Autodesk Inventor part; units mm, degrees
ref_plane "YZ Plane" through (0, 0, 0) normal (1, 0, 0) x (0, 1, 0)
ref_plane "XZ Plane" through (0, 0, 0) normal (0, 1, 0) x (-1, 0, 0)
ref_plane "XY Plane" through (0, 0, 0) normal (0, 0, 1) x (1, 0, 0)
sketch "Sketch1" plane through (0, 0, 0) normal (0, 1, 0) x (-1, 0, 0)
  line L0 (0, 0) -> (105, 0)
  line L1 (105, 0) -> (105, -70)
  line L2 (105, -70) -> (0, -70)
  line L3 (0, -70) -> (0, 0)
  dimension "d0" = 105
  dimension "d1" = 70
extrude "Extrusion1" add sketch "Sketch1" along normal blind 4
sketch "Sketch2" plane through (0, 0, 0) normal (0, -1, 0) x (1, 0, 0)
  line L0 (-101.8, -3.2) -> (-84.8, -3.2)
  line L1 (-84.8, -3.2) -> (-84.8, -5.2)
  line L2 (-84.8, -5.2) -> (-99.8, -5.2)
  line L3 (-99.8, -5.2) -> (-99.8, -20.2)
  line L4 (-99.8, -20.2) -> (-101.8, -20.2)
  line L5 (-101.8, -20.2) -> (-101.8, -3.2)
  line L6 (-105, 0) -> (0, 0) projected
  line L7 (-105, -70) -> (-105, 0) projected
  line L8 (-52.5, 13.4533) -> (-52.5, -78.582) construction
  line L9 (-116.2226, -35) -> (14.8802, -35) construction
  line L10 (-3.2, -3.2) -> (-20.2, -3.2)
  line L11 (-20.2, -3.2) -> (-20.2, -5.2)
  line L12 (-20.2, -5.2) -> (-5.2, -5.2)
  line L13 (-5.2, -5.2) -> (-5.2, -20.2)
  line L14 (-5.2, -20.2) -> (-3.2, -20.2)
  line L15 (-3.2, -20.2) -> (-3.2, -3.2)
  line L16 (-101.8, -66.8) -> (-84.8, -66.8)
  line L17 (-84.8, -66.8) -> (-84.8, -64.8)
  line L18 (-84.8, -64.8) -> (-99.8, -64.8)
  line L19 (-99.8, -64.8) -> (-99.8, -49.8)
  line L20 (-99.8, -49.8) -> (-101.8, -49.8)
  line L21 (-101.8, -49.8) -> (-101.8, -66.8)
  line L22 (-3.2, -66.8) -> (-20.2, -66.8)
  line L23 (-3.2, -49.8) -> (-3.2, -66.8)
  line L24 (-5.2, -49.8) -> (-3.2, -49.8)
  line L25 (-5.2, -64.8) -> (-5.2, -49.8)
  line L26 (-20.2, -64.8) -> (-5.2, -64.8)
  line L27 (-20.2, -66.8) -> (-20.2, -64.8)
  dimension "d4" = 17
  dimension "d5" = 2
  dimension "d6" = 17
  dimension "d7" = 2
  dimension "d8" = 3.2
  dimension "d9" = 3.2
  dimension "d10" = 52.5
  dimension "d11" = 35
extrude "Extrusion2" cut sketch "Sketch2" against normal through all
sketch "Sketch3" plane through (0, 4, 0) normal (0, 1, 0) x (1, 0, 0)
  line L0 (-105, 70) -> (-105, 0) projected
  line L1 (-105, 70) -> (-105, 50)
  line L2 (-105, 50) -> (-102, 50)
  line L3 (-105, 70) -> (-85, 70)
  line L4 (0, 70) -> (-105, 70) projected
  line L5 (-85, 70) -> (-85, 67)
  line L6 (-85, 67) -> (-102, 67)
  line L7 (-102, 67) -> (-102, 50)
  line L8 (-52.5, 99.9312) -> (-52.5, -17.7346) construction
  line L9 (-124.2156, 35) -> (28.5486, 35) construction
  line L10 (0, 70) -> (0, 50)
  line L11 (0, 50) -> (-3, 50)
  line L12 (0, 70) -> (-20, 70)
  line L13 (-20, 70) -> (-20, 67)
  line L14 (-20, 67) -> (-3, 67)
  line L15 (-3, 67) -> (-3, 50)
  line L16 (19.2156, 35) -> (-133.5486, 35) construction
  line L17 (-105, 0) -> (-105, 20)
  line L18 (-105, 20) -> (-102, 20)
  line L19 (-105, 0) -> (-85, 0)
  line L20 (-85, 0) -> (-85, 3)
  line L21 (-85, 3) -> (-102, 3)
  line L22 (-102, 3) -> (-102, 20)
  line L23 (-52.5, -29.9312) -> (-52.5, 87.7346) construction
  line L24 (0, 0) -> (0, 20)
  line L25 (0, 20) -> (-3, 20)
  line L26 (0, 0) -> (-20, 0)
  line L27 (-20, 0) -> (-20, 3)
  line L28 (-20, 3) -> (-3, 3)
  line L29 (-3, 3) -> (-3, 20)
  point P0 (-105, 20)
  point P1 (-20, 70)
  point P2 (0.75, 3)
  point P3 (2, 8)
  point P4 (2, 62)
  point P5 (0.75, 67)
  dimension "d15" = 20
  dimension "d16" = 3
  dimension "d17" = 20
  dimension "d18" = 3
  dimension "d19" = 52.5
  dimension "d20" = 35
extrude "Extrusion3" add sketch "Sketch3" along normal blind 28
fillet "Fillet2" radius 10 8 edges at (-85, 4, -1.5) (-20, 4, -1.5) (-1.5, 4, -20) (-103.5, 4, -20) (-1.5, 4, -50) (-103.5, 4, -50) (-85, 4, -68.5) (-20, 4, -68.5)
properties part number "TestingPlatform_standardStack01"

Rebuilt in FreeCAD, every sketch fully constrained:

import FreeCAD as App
import Part
import Sketcher

V = App.Vector
Q = App.Units.Quantity


def edges_at(feature, points):
    """Names of the edges that pass closest to the given points."""
    edges = feature.Shape.Edges
    near = lambda p: min(range(len(edges)), key=lambda i: edges[i].distToShape(Part.Vertex(*p))[0])
    return sorted({f"Edge{near(p) + 1}" for p in points})

doc = App.newDocument("Part")
body = doc.addObject("PartDesign::Body", "Body")

# Sketch on XZ plane
sketch1 = body.newObject("Sketcher::SketchObject", "Sketch")
sketch1.AttachmentSupport = (doc.getObject("XZ_Plane"), [""])
sketch1.MapMode = "FlatFace"
sketch1.addGeometry([
    Part.LineSegment(V(-105, 0, 0), V(0, 0, 0)),
    Part.LineSegment(V(0, 0, 0), V(0, -70, 0)),
    Part.LineSegment(V(0, -70, 0), V(-105, -70, 0)),
    Part.LineSegment(V(-105, -70, 0), V(-105, 0, 0)),
], False)
sketch1.addConstraint([
    Sketcher.Constraint("Coincident", 0, 2, 1, 1),
    Sketcher.Constraint("Coincident", 1, 2, 2, 1),
    Sketcher.Constraint("Coincident", 2, 2, 3, 1),
    Sketcher.Constraint("Coincident", 3, 2, 0, 1),
    Sketcher.Constraint("Horizontal", 0),
    Sketcher.Constraint("Vertical", 1),
    Sketcher.Constraint("Horizontal", 2),
    Sketcher.Constraint("Vertical", 3),
    Sketcher.Constraint("Coincident", 0, 2, -1, 1),
    Sketcher.Constraint("DistanceX", 0, 1, 0, 2, Q("105 mm")),
    Sketcher.Constraint("DistanceY", 1, 2, 1, 1, Q("70 mm")),
])
pad1 = body.newObject("PartDesign::Pad", "Pad")
pad1.Profile = sketch1
pad1.Length = 4
pad1.Reversed = True

# Sketch on XZ plane
sketch2 = body.newObject("Sketcher::SketchObject", "Sketch001")
sketch2.AttachmentSupport = (doc.getObject("XZ_Plane"), [""])
sketch2.MapMode = "FlatFace"
sketch2.addGeometry([
    Part.LineSegment(V(-84.8, -3.2, 0), V(-101.8, -3.2, 0)),  # 0
    Part.LineSegment(V(-101.8, -3.2, 0), V(-101.8, -20.2, 0)),  # 1
    Part.LineSegment(V(-101.8, -20.2, 0), V(-99.8, -20.2, 0)),  # 2
    Part.LineSegment(V(-99.8, -20.2, 0), V(-99.8, -5.2, 0)),  # 3
    Part.LineSegment(V(-99.8, -5.2, 0), V(-84.8, -5.2, 0)),  # 4
    Part.LineSegment(V(-84.8, -5.2, 0), V(-84.8, -3.2, 0)),  # 5
    Part.LineSegment(V(-3.2, -20.2, 0), V(-3.2, -3.2, 0)),  # 6
    Part.LineSegment(V(-3.2, -3.2, 0), V(-20.2, -3.2, 0)),  # 7
    Part.LineSegment(V(-20.2, -3.2, 0), V(-20.2, -5.2, 0)),  # 8
    Part.LineSegment(V(-20.2, -5.2, 0), V(-5.2, -5.2, 0)),  # 9
    Part.LineSegment(V(-5.2, -5.2, 0), V(-5.2, -20.2, 0)),  # 10
    Part.LineSegment(V(-5.2, -20.2, 0), V(-3.2, -20.2, 0)),  # 11
    Part.LineSegment(V(-101.8, -49.8, 0), V(-101.8, -66.8, 0)),  # 12
    Part.LineSegment(V(-101.8, -66.8, 0), V(-84.8, -66.8, 0)),  # 13
    Part.LineSegment(V(-84.8, -66.8, 0), V(-84.8, -64.8, 0)),  # 14
    Part.LineSegment(V(-84.8, -64.8, 0), V(-99.8, -64.8, 0)),  # 15
    Part.LineSegment(V(-99.8, -64.8, 0), V(-99.8, -49.8, 0)),  # 16
    Part.LineSegment(V(-99.8, -49.8, 0), V(-101.8, -49.8, 0)),  # 17
    Part.LineSegment(V(-20.2, -66.8, 0), V(-3.2, -66.8, 0)),  # 18
    Part.LineSegment(V(-3.2, -66.8, 0), V(-3.2, -49.8, 0)),  # 19
    Part.LineSegment(V(-3.2, -49.8, 0), V(-5.2, -49.8, 0)),  # 20
    Part.LineSegment(V(-5.2, -49.8, 0), V(-5.2, -64.8, 0)),  # 21
    Part.LineSegment(V(-5.2, -64.8, 0), V(-20.2, -64.8, 0)),  # 22
    Part.LineSegment(V(-20.2, -64.8, 0), V(-20.2, -66.8, 0)),  # 23
], False)
sketch2.addConstraint([
    Sketcher.Constraint("Coincident", 0, 2, 1, 1),
    Sketcher.Constraint("Coincident", 1, 2, 2, 1),
    Sketcher.Constraint("Coincident", 2, 2, 3, 1),
    Sketcher.Constraint("Coincident", 3, 2, 4, 1),
    Sketcher.Constraint("Coincident", 4, 2, 5, 1),
    Sketcher.Constraint("Coincident", 5, 2, 0, 1),
    Sketcher.Constraint("Coincident", 6, 2, 7, 1),
    Sketcher.Constraint("Coincident", 7, 2, 8, 1),
    Sketcher.Constraint("Coincident", 8, 2, 9, 1),
    Sketcher.Constraint("Coincident", 9, 2, 10, 1),
    Sketcher.Constraint("Coincident", 10, 2, 11, 1),
    Sketcher.Constraint("Coincident", 11, 2, 6, 1),
    Sketcher.Constraint("Coincident", 12, 2, 13, 1),
    Sketcher.Constraint("Coincident", 13, 2, 14, 1),
    Sketcher.Constraint("Coincident", 14, 2, 15, 1),
    Sketcher.Constraint("Coincident", 15, 2, 16, 1),
    Sketcher.Constraint("Coincident", 16, 2, 17, 1),
    Sketcher.Constraint("Coincident", 17, 2, 12, 1),
    Sketcher.Constraint("Coincident", 18, 2, 19, 1),
    Sketcher.Constraint("Coincident", 19, 2, 20, 1),
    Sketcher.Constraint("Coincident", 20, 2, 21, 1),
    Sketcher.Constraint("Coincident", 21, 2, 22, 1),
    Sketcher.Constraint("Coincident", 22, 2, 23, 1),
    Sketcher.Constraint("Coincident", 23, 2, 18, 1),
    Sketcher.Constraint("Horizontal", 0),
    Sketcher.Constraint("Vertical", 1),
    Sketcher.Constraint("Horizontal", 2),
    Sketcher.Constraint("Vertical", 3),
    Sketcher.Constraint("Horizontal", 4),
    Sketcher.Constraint("Vertical", 5),
    Sketcher.Constraint("Vertical", 6),
    Sketcher.Constraint("Horizontal", 7),
    Sketcher.Constraint("Vertical", 8),
    Sketcher.Constraint("Horizontal", 9),
    Sketcher.Constraint("Vertical", 10),
    Sketcher.Constraint("Horizontal", 11),
    Sketcher.Constraint("Vertical", 12),
    Sketcher.Constraint("Horizontal", 13),
    Sketcher.Constraint("Vertical", 14),
    Sketcher.Constraint("Horizontal", 15),
    Sketcher.Constraint("Vertical", 16),
    Sketcher.Constraint("Horizontal", 17),
    Sketcher.Constraint("Horizontal", 18),
    Sketcher.Constraint("Vertical", 19),
    Sketcher.Constraint("Horizontal", 20),
    Sketcher.Constraint("Vertical", 21),
    Sketcher.Constraint("Horizontal", 22),
    Sketcher.Constraint("Vertical", 23),
    Sketcher.Constraint("Horizontal", 5, 2, 6, 2),
    Sketcher.Constraint("Horizontal", 4, 2, 8, 2),
    Sketcher.Constraint("Horizontal", 2, 2, 10, 2),
    Sketcher.Constraint("Horizontal", 13, 2, 18, 2),
    Sketcher.Constraint("Horizontal", 17, 2, 19, 2),
    Sketcher.Constraint("Horizontal", 15, 2, 21, 2),
    Sketcher.Constraint("Vertical", 1, 2, 12, 2),
    Sketcher.Constraint("Vertical", 5, 2, 13, 2),
    Sketcher.Constraint("Vertical", 3, 2, 15, 2),
    Sketcher.Constraint("Vertical", 11, 2, 18, 2),
    Sketcher.Constraint("Vertical", 10, 2, 20, 2),
    Sketcher.Constraint("Vertical", 8, 2, 22, 2),
    Sketcher.Constraint("Equal", 0, 7),
    Sketcher.Constraint("Equal", 4, 9),
    Sketcher.Constraint("Equal", 18, 1),
    Sketcher.Constraint("Equal", 22, 3),
    Sketcher.Constraint("Equal", 6, 12),
    Sketcher.Constraint("Equal", 8, 14),
    Sketcher.Constraint("DistanceX", 0, 2, 0, 1, Q("17 mm")),
    Sketcher.Constraint("DistanceX", 2, 1, 2, 2, Q("2 mm")),
    Sketcher.Constraint("DistanceY", 0, 2, -1, 1, Q("3.2 mm")),
    Sketcher.Constraint("DistanceX", 6, 2, -1, 1, Q("3.2 mm")),
    Sketcher.Constraint("DistanceX", 0, 2, -1, 1, Q("101.8 mm")),
    Sketcher.Constraint("DistanceY", 12, 2, -1, 1, Q("66.8 mm")),
])
pocket1 = body.newObject("PartDesign::Pocket", "Pocket")
pocket1.Profile = sketch2
pocket1.Type = "ThroughAll"

# Sketch on XZ plane
sketch3 = body.newObject("Sketcher::SketchObject", "Sketch002")
sketch3.AttachmentSupport = (doc.getObject("XZ_Plane"), [""])
sketch3.MapMode = "FlatFace"
sketch3.AttachmentOffset = App.Placement(V(0, 0, -4), App.Rotation())
sketch3.addGeometry([
    Part.LineSegment(V(-85, -70, 0), V(-105, -70, 0)),  # 0
    Part.LineSegment(V(-105, -70, 0), V(-105, -50, 0)),  # 1
    Part.LineSegment(V(-105, -50, 0), V(-102, -50, 0)),  # 2
    Part.LineSegment(V(-102, -50, 0), V(-102, -67, 0)),  # 3
    Part.LineSegment(V(-102, -67, 0), V(-85, -67, 0)),  # 4
    Part.LineSegment(V(-85, -67, 0), V(-85, -70, 0)),  # 5
    Part.LineSegment(V(0, -70, 0), V(-20, -70, 0)),  # 6
    Part.LineSegment(V(-20, -70, 0), V(-20, -67, 0)),  # 7
    Part.LineSegment(V(-20, -67, 0), V(-3, -67, 0)),  # 8
    Part.LineSegment(V(-3, -67, 0), V(-3, -50, 0)),  # 9
    Part.LineSegment(V(-3, -50, 0), V(0, -50, 0)),  # 10
    Part.LineSegment(V(0, -50, 0), V(0, -70, 0)),  # 11
    Part.LineSegment(V(-102, -20, 0), V(-105, -20, 0)),  # 12
    Part.LineSegment(V(-105, -20, 0), V(-105, 0, 0)),  # 13
    Part.LineSegment(V(-105, 0, 0), V(-85, 0, 0)),  # 14
    Part.LineSegment(V(-85, 0, 0), V(-85, -3, 0)),  # 15
    Part.LineSegment(V(-85, -3, 0), V(-102, -3, 0)),  # 16
    Part.LineSegment(V(-102, -3, 0), V(-102, -20, 0)),  # 17
    Part.LineSegment(V(-20, 0, 0), V(0, 0, 0)),  # 18
    Part.LineSegment(V(0, 0, 0), V(0, -20, 0)),  # 19
    Part.LineSegment(V(0, -20, 0), V(-3, -20, 0)),  # 20
    Part.LineSegment(V(-3, -20, 0), V(-3, -3, 0)),  # 21
    Part.LineSegment(V(-3, -3, 0), V(-20, -3, 0)),  # 22
    Part.LineSegment(V(-20, -3, 0), V(-20, 0, 0)),  # 23
], False)
sketch3.addConstraint([
    Sketcher.Constraint("Coincident", 0, 2, 1, 1),
    Sketcher.Constraint("Coincident", 1, 2, 2, 1),
    Sketcher.Constraint("Coincident", 2, 2, 3, 1),
    Sketcher.Constraint("Coincident", 3, 2, 4, 1),
    Sketcher.Constraint("Coincident", 4, 2, 5, 1),
    Sketcher.Constraint("Coincident", 5, 2, 0, 1),
    Sketcher.Constraint("Coincident", 6, 2, 7, 1),
    Sketcher.Constraint("Coincident", 7, 2, 8, 1),
    Sketcher.Constraint("Coincident", 8, 2, 9, 1),
    Sketcher.Constraint("Coincident", 9, 2, 10, 1),
    Sketcher.Constraint("Coincident", 10, 2, 11, 1),
    Sketcher.Constraint("Coincident", 11, 2, 6, 1),
    Sketcher.Constraint("Coincident", 12, 2, 13, 1),
    Sketcher.Constraint("Coincident", 13, 2, 14, 1),
    Sketcher.Constraint("Coincident", 14, 2, 15, 1),
    Sketcher.Constraint("Coincident", 15, 2, 16, 1),
    Sketcher.Constraint("Coincident", 16, 2, 17, 1),
    Sketcher.Constraint("Coincident", 17, 2, 12, 1),
    Sketcher.Constraint("Coincident", 18, 2, 19, 1),
    Sketcher.Constraint("Coincident", 19, 2, 20, 1),
    Sketcher.Constraint("Coincident", 20, 2, 21, 1),
    Sketcher.Constraint("Coincident", 21, 2, 22, 1),
    Sketcher.Constraint("Coincident", 22, 2, 23, 1),
    Sketcher.Constraint("Coincident", 23, 2, 18, 1),
    Sketcher.Constraint("Horizontal", 0),
    Sketcher.Constraint("Vertical", 1),
    Sketcher.Constraint("Horizontal", 2),
    Sketcher.Constraint("Vertical", 3),
    Sketcher.Constraint("Horizontal", 4),
    Sketcher.Constraint("Vertical", 5),
    Sketcher.Constraint("Horizontal", 6),
    Sketcher.Constraint("Vertical", 7),
    Sketcher.Constraint("Horizontal", 8),
    Sketcher.Constraint("Vertical", 9),
    Sketcher.Constraint("Horizontal", 10),
    Sketcher.Constraint("Vertical", 11),
    Sketcher.Constraint("Horizontal", 12),
    Sketcher.Constraint("Vertical", 13),
    Sketcher.Constraint("Horizontal", 14),
    Sketcher.Constraint("Vertical", 15),
    Sketcher.Constraint("Horizontal", 16),
    Sketcher.Constraint("Vertical", 17),
    Sketcher.Constraint("Horizontal", 18),
    Sketcher.Constraint("Vertical", 19),
    Sketcher.Constraint("Horizontal", 20),
    Sketcher.Constraint("Vertical", 21),
    Sketcher.Constraint("Horizontal", 22),
    Sketcher.Constraint("Vertical", 23),
    Sketcher.Constraint("Coincident", 18, 2, -1, 1),
    Sketcher.Constraint("PointOnObject", 10, 2, -2),
    Sketcher.Constraint("PointOnObject", 13, 2, -1),
    Sketcher.Constraint("Horizontal", 5, 2, 6, 2),
    Sketcher.Constraint("Horizontal", 4, 2, 7, 2),
    Sketcher.Constraint("Horizontal", 2, 2, 9, 2),
    Sketcher.Constraint("Horizontal", 17, 2, 19, 2),
    Sketcher.Constraint("Horizontal", 16, 2, 21, 2),
    Sketcher.Constraint("Vertical", 1, 2, 12, 2),
    Sketcher.Constraint("Vertical", 5, 2, 14, 2),
    Sketcher.Constraint("Vertical", 3, 2, 16, 2),
    Sketcher.Constraint("Vertical", 9, 2, 20, 2),
    Sketcher.Constraint("Vertical", 7, 2, 22, 2),
    Sketcher.Constraint("Equal", 0, 6),
    Sketcher.Constraint("Equal", 4, 8),
    Sketcher.Constraint("Equal", 18, 1),
    Sketcher.Constraint("Equal", 22, 3),
    Sketcher.Constraint("Equal", 11, 13),
    Sketcher.Constraint("Equal", 7, 15),
    Sketcher.Constraint("DistanceX", 0, 2, 0, 1, Q("20 mm")),
    Sketcher.Constraint("DistanceX", 2, 1, 2, 2, Q("3 mm")),
    Sketcher.Constraint("DistanceX", 0, 2, -1, 1, Q("105 mm")),
    Sketcher.Constraint("DistanceY", 0, 2, -1, 1, Q("70 mm")),
])
pad2 = body.newObject("PartDesign::Pad", "Pad001")
pad2.Profile = sketch3
pad2.Length = 28
pad2.Reversed = True
doc.recompute()

fillet = body.newObject("PartDesign::Fillet", "Fillet")
fillet.Base = (pad2, edges_at(pad2, [
    (-85, 4, -1.5),
    (-20, 4, -1.5),
    (-1.5, 4, -20),
    (-103.5, 4, -20),
    (-1.5, 4, -50),
    (-103.5, 4, -50),
    (-85, 4, -68.5),
    (-20, 4, -68.5),
]))
fillet.Radius = 10

doc.recompute()
